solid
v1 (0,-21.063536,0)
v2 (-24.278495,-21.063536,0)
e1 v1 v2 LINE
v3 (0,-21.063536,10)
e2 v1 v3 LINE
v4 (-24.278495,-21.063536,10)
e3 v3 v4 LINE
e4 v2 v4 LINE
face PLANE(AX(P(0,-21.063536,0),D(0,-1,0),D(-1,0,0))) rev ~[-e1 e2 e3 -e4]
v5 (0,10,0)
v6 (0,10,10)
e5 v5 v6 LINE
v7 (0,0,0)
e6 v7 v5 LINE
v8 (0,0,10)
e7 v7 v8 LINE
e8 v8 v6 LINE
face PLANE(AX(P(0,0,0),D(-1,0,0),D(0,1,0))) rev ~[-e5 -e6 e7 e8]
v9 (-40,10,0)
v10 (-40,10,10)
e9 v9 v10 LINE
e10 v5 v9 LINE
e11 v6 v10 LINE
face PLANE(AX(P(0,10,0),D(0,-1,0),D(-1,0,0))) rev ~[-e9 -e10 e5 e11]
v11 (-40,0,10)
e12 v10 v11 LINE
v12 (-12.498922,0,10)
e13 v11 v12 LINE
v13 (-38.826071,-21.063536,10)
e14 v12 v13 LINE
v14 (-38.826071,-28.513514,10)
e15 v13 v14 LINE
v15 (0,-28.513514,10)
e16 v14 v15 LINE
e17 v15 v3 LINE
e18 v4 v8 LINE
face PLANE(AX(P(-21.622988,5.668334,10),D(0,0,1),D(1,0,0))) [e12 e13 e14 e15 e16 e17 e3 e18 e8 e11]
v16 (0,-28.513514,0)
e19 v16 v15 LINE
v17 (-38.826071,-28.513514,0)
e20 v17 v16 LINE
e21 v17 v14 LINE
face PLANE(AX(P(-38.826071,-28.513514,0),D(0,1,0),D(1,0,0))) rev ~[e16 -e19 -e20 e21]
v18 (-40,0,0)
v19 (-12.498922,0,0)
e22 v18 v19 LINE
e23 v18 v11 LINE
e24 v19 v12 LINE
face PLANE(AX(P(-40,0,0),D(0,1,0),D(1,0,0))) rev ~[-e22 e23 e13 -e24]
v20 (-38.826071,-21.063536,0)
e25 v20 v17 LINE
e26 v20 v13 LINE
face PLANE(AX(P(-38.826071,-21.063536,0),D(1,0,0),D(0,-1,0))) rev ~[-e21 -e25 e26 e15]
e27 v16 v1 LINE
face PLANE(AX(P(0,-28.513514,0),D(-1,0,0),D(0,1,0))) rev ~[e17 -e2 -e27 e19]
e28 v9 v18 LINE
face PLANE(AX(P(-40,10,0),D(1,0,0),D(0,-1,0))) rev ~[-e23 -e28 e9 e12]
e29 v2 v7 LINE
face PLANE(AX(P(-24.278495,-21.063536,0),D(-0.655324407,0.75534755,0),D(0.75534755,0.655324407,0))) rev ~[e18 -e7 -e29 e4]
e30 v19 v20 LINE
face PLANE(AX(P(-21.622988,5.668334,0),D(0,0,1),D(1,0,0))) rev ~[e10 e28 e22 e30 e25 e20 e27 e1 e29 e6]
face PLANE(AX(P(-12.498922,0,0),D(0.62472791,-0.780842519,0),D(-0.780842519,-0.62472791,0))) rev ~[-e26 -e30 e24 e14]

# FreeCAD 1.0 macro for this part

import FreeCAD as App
import Part
import Sketcher
from FreeCAD import Vector
Q = App.Units.Quantity


def add_polygon(sketch, points):
    """Adds a closed chain of lines whose ends are joined by coincident constraints."""
    first, n = sketch.GeometryCount, len(points)
    for a, b in zip(points, points[1:] + points[:1]):
        sketch.addGeometry(Part.LineSegment(App.Vector(*a, 0), App.Vector(*b, 0)), False)
    for i in range(n):
        sketch.addConstraint(Sketcher.Constraint("Coincident", first + i, 2, first + (i + 1) % n, 1))

doc = App.newDocument("Part")
params = doc.addObject("Spreadsheet::Sheet", "Params")
for row, (alias, value) in enumerate([
    ("sketch1_width", "40 mm"),
    ("sketch1_height", "10 mm"),
    ("pad1_length", "10 mm"),
], start=1):
    params.set(f"A{row}", alias)
    params.set(f"B{row}", "=" + value)
    params.setAlias(f"B{row}", alias)

body = doc.addObject("PartDesign::Body", "Body")

# Sketch on XY plane
sketch1 = body.newObject("Sketcher::SketchObject", "Sketch")
sketch1.AttachmentSupport = (doc.getObject("XY_Plane"), [""])
sketch1.MapMode = "FlatFace"
add_polygon(sketch1, [(-40, 0), (-12, 0), (-39, -21), (-39, -29), (0, -29), (0, -21), (-24, -21), (0, 0), (0, 10), (-40, 10)])  # lines 0-9
sketch1.addConstraint([
    Sketcher.Constraint("Horizontal", 0),
    Sketcher.Constraint("Vertical", 2),
    Sketcher.Constraint("Horizontal", 3),
    Sketcher.Constraint("Vertical", 4),
    Sketcher.Constraint("Horizontal", 5),
    Sketcher.Constraint("Vertical", 7),
    Sketcher.Constraint("Horizontal", 8),
    Sketcher.Constraint("Vertical", 9),
    Sketcher.Constraint("Coincident", 6, 2, -1, 1),
    Sketcher.Constraint("PointOnObject", 0, 2, -1),
    Sketcher.Constraint("PointOnObject", 3, 2, -2),
    Sketcher.Constraint("Horizontal", 1, 2, 4, 2),
    Sketcher.Constraint("DistanceX", 8, 2, 8, 1, Q("40 mm")),
    Sketcher.Constraint("DistanceY", 7, 1, 7, 2, Q("10 mm")),
    Sketcher.Constraint("DistanceX", 0, 1, 0, 2, Q("27.501078 mm")),
    Sketcher.Constraint("DistanceX", 3, 1, 3, 2, Q("38.826071 mm")),
    Sketcher.Constraint("Distance", 6, Q("32.142152 mm")),
    Sketcher.Constraint("DistanceX", 5, 2, 5, 1, Q("24.278495 mm")),
    Sketcher.Constraint("DistanceY", 2, 2, 2, 1, Q("7.449978 mm")),
])
sketch1.setExpression("Constraints[22]", "Params.sketch1_width")
sketch1.setExpression("Constraints[23]", "Params.sketch1_height")
pad1 = body.newObject("PartDesign::Pad", "Pad")
pad1.Profile = sketch1
pad1.setExpression("Length", "Params.pad1_length")

doc.recompute()
